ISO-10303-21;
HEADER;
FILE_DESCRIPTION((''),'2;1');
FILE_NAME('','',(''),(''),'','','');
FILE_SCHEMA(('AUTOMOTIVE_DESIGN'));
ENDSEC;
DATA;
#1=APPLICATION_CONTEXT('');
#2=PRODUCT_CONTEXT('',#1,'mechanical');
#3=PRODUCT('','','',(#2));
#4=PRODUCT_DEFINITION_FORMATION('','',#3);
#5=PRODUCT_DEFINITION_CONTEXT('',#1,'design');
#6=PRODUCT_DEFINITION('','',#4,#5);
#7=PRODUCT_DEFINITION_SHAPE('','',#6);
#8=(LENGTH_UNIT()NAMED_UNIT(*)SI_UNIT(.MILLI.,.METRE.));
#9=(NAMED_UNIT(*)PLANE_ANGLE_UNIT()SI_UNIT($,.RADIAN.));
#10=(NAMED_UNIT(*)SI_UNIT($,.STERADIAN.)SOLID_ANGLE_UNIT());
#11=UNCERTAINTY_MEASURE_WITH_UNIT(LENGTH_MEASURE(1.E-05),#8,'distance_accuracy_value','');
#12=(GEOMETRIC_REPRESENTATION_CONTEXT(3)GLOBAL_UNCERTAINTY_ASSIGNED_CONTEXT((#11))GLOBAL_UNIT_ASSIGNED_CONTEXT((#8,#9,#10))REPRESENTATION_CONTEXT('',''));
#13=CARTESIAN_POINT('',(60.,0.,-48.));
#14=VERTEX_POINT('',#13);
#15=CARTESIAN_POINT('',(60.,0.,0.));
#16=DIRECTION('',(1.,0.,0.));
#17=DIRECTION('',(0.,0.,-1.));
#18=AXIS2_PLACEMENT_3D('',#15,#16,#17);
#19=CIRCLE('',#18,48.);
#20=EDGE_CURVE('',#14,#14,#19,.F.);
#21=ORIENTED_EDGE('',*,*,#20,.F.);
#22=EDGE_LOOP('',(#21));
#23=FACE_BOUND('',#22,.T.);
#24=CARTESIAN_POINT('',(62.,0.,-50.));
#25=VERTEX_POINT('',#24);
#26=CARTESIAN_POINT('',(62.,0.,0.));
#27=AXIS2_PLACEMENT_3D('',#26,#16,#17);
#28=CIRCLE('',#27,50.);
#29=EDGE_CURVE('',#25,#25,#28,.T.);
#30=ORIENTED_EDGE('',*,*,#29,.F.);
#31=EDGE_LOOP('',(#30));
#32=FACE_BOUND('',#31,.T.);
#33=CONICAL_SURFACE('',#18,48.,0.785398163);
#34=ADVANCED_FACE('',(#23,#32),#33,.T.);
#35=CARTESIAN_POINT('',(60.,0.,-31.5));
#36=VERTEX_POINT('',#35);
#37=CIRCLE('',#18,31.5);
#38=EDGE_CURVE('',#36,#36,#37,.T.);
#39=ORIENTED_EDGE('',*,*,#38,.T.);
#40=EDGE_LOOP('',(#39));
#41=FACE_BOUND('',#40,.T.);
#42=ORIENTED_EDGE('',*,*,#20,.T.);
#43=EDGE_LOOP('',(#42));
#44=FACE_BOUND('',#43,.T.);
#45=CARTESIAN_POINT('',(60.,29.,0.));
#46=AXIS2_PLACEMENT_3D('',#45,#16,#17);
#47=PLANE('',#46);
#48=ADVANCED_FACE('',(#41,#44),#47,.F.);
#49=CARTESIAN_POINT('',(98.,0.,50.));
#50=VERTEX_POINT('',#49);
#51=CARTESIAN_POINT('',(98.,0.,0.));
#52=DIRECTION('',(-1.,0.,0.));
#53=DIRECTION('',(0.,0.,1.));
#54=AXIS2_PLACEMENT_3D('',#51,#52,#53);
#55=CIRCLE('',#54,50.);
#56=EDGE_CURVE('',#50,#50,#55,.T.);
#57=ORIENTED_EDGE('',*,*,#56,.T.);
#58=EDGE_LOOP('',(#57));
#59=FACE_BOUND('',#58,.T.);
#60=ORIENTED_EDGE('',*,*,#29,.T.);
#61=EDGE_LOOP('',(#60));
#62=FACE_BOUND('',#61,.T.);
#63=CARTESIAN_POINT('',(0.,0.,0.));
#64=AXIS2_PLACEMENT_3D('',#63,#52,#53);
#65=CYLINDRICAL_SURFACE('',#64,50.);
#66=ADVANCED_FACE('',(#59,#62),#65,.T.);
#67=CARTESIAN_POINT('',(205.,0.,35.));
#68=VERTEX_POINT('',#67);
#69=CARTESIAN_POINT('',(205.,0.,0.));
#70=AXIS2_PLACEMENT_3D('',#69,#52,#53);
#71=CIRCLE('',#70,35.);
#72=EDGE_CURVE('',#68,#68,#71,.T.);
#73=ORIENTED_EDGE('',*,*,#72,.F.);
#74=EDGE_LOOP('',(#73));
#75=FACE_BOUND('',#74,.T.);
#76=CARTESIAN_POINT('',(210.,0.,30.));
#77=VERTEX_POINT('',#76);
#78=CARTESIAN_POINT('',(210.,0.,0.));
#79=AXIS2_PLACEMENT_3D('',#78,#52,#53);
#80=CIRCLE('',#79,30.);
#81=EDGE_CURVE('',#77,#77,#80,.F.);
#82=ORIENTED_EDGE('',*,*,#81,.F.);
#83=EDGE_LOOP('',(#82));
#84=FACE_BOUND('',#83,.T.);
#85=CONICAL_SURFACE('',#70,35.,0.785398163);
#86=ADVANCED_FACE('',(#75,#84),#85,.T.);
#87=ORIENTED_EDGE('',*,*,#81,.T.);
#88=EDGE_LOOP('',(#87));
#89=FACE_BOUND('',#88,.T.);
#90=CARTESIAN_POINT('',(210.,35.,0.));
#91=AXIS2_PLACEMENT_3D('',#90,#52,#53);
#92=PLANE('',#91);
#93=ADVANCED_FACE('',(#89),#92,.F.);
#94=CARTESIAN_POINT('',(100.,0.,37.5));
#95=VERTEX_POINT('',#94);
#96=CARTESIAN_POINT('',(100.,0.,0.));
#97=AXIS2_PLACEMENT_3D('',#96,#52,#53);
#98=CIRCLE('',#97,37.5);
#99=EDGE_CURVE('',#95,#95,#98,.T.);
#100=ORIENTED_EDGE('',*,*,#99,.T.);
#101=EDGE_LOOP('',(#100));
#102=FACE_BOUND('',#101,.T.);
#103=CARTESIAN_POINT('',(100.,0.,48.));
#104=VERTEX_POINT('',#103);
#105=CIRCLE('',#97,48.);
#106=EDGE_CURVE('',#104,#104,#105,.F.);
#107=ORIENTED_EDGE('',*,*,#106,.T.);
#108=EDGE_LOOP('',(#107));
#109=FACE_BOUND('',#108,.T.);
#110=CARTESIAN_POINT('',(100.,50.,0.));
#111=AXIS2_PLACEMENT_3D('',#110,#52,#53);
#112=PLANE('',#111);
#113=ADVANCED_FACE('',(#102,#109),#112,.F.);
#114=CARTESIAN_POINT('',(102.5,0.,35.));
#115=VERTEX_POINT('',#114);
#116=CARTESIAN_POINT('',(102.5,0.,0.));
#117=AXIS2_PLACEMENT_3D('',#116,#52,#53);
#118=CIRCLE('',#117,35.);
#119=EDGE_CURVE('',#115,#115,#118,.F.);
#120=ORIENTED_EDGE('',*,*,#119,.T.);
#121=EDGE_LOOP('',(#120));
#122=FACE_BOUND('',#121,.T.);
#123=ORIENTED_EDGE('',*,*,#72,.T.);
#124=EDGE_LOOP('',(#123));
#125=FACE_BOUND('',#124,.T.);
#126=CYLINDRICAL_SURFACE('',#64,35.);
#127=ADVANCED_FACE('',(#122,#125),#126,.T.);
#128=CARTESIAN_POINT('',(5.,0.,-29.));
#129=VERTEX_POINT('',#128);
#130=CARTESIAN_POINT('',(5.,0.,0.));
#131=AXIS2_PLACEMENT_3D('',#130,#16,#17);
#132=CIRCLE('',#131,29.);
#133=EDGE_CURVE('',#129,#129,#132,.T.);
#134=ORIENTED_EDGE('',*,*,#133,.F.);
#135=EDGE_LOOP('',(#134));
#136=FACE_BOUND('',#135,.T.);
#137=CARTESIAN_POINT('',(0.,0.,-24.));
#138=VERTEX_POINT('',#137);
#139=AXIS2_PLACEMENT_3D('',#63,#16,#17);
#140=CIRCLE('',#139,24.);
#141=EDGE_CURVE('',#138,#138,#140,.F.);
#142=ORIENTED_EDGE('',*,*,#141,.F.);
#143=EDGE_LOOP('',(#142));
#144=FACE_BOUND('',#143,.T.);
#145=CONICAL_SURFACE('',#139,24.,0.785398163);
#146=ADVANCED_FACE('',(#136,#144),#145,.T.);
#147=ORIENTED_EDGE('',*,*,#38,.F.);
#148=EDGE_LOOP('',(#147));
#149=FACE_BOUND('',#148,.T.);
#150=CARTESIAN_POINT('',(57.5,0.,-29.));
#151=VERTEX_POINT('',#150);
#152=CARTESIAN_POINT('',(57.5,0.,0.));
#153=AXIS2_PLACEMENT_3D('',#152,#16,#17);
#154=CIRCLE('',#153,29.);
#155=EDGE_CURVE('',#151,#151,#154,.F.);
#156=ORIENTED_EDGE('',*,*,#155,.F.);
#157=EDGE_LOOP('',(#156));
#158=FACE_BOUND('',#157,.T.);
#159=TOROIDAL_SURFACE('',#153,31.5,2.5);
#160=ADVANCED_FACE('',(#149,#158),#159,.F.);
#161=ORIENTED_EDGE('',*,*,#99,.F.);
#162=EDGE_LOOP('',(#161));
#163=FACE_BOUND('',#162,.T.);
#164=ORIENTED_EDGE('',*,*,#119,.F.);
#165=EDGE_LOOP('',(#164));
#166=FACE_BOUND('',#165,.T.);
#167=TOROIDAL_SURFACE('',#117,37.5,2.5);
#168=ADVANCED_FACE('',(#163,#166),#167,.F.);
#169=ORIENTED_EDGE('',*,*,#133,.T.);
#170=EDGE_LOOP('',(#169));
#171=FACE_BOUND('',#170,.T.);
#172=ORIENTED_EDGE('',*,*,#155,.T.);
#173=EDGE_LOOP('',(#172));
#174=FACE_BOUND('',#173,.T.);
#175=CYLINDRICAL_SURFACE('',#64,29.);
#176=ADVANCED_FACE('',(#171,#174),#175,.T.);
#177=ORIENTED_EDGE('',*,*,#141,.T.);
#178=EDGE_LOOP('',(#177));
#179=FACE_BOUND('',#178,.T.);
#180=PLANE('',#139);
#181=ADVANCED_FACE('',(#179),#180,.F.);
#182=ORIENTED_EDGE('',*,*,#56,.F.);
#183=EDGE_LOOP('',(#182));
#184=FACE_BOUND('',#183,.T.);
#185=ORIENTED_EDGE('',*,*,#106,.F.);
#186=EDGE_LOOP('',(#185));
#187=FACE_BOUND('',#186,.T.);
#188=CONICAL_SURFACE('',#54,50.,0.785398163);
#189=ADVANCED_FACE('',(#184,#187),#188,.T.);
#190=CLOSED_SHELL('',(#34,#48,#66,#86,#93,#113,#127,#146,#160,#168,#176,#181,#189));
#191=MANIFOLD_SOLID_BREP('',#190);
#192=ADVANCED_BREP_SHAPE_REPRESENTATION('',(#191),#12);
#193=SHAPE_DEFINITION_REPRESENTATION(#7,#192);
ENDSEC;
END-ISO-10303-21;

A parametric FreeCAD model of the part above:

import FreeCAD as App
import Part
import Sketcher
from FreeCAD import Vector
Q = App.Units.Quantity


def edges_at(feature, points):
    """Names of the edges that pass closest to the given points."""
    edges = feature.Shape.Edges
    near = lambda p: min(range(len(edges)), key=lambda i: edges[i].distToShape(Part.Vertex(*p))[0])
    return sorted({f"Edge{near(p) + 1}" for p in points})


def add_polygon(sketch, points):
    """Adds a closed chain of lines whose ends are joined by coincident constraints."""
    first, n = sketch.GeometryCount, len(points)
    for a, b in zip(points, points[1:] + points[:1]):
        sketch.addGeometry(Part.LineSegment(App.Vector(*a, 0), App.Vector(*b, 0)), False)
    for i in range(n):
        sketch.addConstraint(Sketcher.Constraint("Coincident", first + i, 2, first + (i + 1) % n, 1))

doc = App.newDocument("Part")
params = doc.addObject("Spreadsheet::Sheet", "Params")
for row, (alias, value) in enumerate([
    ("sketch1_width", "210 mm"),
    ("sketch1_width2", "110 mm"),
    ("sketch1_width3", "40 mm"),
    ("sketch1_height", "29 mm"),
    ("sketch1_height2", "35 mm"),
    ("revolution_angle", "360 deg"),
    ("chamfer_size", "5 mm"),
    ("chamfer2_size", "2 mm"),
    ("fillet_radius", "2.5 mm"),
], start=1):
    params.set(f"A{row}", alias)
    params.set(f"B{row}", "=" + value)
    params.setAlias(f"B{row}", alias)

body = doc.addObject("PartDesign::Body", "Body")

# Sketch on XY plane
sketch1 = body.newObject("Sketcher::SketchObject", "Sketch")
sketch1.AttachmentSupport = (doc.getObject("XY_Plane"), [""])
sketch1.MapMode = "FlatFace"
add_polygon(sketch1, [(0, 29), (0, 0), (210, 0), (210, 35), (100, 35), (100, 50), (60, 50), (60, 29)])  # lines 0-7
sketch1.addConstraint(Sketcher.Constraint("Vertical", 0))
sketch1.addConstraint(Sketcher.Constraint("Horizontal", 1))
sketch1.addConstraint(Sketcher.Constraint("Vertical", 2))
sketch1.addConstraint(Sketcher.Constraint("Horizontal", 3))
sketch1.addConstraint(Sketcher.Constraint("Vertical", 4))
sketch1.addConstraint(Sketcher.Constraint("Horizontal", 5))
sketch1.addConstraint(Sketcher.Constraint("Vertical", 6))
sketch1.addConstraint(Sketcher.Constraint("Horizontal", 7))
sketch1.addConstraint(Sketcher.Constraint("Coincident", 0, 2, -1, 1))
sketch1.addConstraint(Sketcher.Constraint("DistanceX", 1, 1, 1, 2, Q("210 mm")))
sketch1.addConstraint(Sketcher.Constraint("DistanceX", 3, 2, 3, 1, Q("110 mm")))
sketch1.addConstraint(Sketcher.Constraint("DistanceX", 5, 2, 5, 1, Q("40 mm")))
sketch1.addConstraint(Sketcher.Constraint("DistanceY", 0, 2, 0, 1, Q("29 mm")))
sketch1.addConstraint(Sketcher.Constraint("DistanceY", 2, 1, 2, 2, Q("35 mm")))
sketch1.addConstraint(Sketcher.Constraint("DistanceY", 4, 1, 4, 2, Q("15 mm")))
sketch1.setExpression("Constraints[17]", "Params.sketch1_width")
sketch1.setExpression("Constraints[18]", "Params.sketch1_width2")
sketch1.setExpression("Constraints[19]", "Params.sketch1_width3")
sketch1.setExpression("Constraints[20]", "Params.sketch1_height")
sketch1.setExpression("Constraints[21]", "Params.sketch1_height2")
revolution = body.newObject("PartDesign::Revolution", "Revolution")
revolution.Profile = sketch1
revolution.ReferenceAxis = (sketch1, ["H_Axis"])
revolution.setExpression("Angle", "Params.revolution_angle")
doc.recompute()

chamfer = body.newObject("PartDesign::Chamfer", "Chamfer")
chamfer.Base = (revolution, edges_at(revolution, [(210, 0, -35), (0, 0, -29)]))
chamfer.setExpression("Size", "Params.chamfer_size")
doc.recompute()

chamfer2 = body.newObject("PartDesign::Chamfer", "Chamfer001")
chamfer2.Base = (chamfer, edges_at(chamfer, [(100, 0, -50), (60, 0, -50)]))
chamfer2.setExpression("Size", "Params.chamfer2_size")
doc.recompute()

fillet = body.newObject("PartDesign::Fillet", "Fillet")
fillet.Base = (chamfer2, edges_at(chamfer2, [(100, 0, -35), (60, 0, -29)]))
fillet.setExpression("Radius", "Params.fillet_radius")

doc.recompute()
